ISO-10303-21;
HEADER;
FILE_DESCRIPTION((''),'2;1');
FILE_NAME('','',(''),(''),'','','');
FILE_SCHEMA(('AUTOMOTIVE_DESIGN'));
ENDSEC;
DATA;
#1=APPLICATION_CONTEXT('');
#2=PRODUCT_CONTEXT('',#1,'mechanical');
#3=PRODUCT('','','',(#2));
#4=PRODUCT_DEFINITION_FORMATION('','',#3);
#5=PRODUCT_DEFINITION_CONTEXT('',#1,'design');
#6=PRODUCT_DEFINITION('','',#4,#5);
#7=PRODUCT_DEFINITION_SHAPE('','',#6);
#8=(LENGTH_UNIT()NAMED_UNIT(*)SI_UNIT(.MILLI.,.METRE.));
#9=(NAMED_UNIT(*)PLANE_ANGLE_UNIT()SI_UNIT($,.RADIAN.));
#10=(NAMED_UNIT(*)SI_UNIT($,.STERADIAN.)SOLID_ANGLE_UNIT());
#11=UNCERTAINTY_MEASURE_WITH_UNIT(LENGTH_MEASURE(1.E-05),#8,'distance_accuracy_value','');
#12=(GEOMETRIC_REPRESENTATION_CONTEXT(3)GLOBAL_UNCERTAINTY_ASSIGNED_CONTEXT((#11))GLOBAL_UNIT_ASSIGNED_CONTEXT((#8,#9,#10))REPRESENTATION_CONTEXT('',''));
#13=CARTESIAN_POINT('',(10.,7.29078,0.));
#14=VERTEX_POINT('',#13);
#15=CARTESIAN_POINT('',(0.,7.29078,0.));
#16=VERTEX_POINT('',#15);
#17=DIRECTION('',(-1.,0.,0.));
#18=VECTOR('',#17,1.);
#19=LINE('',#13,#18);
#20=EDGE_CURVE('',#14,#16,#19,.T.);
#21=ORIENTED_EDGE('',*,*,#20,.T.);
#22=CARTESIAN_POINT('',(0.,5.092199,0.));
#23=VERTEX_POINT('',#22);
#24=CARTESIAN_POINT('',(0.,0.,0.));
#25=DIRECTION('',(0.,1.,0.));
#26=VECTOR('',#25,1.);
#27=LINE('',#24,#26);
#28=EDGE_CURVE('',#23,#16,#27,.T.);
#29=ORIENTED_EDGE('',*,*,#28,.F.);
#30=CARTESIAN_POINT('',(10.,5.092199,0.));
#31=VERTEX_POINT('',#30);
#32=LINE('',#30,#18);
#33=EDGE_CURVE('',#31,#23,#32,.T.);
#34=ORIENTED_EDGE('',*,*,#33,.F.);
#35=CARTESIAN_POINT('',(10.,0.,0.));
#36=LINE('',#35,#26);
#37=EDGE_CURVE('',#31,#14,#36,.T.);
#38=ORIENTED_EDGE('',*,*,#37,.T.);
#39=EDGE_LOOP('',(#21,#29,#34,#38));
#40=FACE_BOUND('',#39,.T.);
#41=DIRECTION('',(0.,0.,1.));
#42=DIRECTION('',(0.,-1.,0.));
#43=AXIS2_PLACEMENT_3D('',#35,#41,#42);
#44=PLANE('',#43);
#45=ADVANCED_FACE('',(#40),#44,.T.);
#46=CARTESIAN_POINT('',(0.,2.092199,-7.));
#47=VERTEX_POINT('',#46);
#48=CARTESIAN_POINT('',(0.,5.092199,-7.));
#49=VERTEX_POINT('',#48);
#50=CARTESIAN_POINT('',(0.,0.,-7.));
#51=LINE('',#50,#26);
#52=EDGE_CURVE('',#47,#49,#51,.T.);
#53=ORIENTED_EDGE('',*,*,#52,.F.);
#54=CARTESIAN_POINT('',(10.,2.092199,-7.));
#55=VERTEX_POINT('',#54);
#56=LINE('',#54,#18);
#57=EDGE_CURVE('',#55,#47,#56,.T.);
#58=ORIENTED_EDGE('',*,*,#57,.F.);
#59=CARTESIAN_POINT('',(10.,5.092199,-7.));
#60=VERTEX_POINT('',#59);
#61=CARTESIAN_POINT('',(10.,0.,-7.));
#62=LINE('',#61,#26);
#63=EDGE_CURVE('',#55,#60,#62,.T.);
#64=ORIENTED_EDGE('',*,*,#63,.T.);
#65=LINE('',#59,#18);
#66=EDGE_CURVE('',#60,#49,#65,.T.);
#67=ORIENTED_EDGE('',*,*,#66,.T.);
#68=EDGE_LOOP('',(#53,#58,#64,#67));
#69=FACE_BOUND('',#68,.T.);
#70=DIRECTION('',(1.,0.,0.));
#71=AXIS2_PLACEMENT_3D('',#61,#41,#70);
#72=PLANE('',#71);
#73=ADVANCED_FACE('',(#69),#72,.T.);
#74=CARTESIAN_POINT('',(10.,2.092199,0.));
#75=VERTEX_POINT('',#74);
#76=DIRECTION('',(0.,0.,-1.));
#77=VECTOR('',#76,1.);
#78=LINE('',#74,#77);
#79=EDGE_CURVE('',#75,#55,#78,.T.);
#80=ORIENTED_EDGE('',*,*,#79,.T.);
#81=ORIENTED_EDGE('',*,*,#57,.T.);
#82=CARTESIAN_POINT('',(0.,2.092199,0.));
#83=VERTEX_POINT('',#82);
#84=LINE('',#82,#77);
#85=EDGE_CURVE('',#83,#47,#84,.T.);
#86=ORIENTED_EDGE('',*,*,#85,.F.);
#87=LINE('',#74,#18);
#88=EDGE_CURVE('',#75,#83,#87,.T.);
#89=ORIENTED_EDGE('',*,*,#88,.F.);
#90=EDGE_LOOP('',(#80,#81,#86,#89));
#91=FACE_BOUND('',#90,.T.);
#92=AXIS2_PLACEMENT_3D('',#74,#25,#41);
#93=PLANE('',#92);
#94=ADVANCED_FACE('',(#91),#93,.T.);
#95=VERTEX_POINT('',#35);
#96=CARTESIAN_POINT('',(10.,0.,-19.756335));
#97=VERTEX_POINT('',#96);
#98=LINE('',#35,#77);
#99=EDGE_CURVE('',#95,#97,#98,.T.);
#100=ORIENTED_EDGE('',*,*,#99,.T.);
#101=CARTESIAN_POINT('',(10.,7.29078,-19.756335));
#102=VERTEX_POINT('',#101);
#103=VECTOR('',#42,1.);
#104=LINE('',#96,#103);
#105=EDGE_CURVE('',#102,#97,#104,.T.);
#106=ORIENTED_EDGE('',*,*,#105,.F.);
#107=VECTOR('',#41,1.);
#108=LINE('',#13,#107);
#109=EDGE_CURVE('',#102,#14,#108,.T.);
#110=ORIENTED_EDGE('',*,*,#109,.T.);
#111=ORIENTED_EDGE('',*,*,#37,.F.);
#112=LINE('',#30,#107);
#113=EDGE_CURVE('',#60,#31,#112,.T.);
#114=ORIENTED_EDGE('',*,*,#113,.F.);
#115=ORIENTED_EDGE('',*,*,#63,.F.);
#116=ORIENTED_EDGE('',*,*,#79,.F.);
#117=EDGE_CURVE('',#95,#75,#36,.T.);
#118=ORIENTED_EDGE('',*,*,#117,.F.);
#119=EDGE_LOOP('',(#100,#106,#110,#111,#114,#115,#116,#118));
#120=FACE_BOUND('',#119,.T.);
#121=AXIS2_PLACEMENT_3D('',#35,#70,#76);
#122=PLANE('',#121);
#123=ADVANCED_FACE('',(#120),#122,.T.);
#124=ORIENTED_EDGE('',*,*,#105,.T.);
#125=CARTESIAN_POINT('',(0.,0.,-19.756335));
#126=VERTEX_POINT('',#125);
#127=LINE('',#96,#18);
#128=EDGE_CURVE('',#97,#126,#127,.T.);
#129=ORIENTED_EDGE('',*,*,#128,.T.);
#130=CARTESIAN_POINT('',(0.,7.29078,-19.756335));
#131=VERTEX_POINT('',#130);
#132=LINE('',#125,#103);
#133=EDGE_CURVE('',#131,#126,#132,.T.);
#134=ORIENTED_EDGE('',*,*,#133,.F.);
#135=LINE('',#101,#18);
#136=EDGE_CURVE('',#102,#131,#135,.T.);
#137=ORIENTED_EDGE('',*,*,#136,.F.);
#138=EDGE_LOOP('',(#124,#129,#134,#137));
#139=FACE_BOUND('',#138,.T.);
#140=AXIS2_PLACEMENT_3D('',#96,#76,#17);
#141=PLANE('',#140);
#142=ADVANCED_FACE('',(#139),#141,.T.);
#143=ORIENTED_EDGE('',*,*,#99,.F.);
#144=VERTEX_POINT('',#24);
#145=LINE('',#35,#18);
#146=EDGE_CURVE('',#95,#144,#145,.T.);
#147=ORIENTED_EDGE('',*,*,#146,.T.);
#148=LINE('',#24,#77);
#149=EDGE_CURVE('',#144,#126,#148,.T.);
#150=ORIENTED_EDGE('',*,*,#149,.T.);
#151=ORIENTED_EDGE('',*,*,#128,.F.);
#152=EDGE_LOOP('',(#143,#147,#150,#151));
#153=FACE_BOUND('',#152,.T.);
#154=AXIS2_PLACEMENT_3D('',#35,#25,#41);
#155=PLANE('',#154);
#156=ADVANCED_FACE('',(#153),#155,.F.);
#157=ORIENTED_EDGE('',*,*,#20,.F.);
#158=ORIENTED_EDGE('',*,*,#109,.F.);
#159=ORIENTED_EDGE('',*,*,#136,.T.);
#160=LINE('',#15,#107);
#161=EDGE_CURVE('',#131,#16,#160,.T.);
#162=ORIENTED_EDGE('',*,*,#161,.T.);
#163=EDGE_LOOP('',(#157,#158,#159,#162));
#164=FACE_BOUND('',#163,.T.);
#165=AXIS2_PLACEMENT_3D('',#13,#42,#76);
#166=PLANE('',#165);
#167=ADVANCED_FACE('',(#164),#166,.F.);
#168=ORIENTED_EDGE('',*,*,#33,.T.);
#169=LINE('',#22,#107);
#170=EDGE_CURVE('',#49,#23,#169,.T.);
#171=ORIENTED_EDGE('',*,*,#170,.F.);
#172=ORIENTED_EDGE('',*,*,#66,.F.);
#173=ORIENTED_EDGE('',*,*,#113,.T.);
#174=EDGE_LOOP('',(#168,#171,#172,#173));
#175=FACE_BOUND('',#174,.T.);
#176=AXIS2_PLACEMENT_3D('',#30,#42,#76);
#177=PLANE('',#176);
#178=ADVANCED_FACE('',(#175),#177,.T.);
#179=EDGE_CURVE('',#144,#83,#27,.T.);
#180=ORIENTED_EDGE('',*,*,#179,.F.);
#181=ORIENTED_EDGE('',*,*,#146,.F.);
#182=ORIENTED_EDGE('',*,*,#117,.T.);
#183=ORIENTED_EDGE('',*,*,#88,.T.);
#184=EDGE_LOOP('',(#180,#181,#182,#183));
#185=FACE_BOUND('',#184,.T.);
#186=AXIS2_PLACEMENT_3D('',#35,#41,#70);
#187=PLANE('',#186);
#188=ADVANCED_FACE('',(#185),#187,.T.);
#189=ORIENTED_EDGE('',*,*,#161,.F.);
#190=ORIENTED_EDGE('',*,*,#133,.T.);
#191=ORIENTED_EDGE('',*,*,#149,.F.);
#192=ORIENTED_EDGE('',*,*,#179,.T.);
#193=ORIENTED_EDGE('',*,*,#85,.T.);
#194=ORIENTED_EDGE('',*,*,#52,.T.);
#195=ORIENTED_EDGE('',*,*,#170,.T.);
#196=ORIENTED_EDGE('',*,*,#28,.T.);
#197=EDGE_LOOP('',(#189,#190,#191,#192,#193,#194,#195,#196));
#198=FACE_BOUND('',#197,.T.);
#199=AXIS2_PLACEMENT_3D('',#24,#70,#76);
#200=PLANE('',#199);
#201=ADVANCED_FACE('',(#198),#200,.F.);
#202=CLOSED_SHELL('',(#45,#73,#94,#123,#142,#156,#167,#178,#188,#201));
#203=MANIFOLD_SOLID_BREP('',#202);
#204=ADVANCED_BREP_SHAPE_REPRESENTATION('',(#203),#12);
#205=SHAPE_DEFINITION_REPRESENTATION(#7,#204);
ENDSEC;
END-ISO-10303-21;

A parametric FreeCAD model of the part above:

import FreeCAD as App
import Part
import Sketcher
from FreeCAD import Vector
Q = App.Units.Quantity

doc = App.newDocument("Part")
body = doc.addObject("PartDesign::Body", "Body")

sketch1 = body.newObject("Sketcher::SketchObject", "Sketch")
sketch1.AttachmentSupport = (doc.getObject("YZ_Plane"), [""])
sketch1.MapMode = "FlatFace"
sketch1.addGeometry(Part.LineSegment(Vector(2.092199, 0, 0), Vector(0, 0, 0)), False)
sketch1.addGeometry(Part.LineSegment(Vector(0, 0, 0), Vector(0, -19.756335, 0)), False)
sketch1.addGeometry(Part.LineSegment(Vector(0, -19.756335, 0), Vector(7.29078, -19.756335, 0)), False)
sketch1.addGeometry(Part.LineSegment(Vector(7.29078, -19.756335, 0), Vector(7.29078, 0, 0)), False)
sketch1.addGeometry(Part.LineSegment(Vector(7.29078, 0, 0), Vector(5.092199, 0, 0)), False)
sketch1.addGeometry(Part.LineSegment(Vector(5.092199, 0, 0), Vector(5.092199, -7, 0)), False)
sketch1.addGeometry(Part.LineSegment(Vector(5.092199, -7, 0), Vector(2.092199, -7, 0)), False)
sketch1.addGeometry(Part.LineSegment(Vector(2.092199, -7, 0), Vector(2.092199, 0, 0)), False)
sketch1.addConstraint(Sketcher.Constraint("Coincident", 0, 2, 1, 1))
sketch1.addConstraint(Sketcher.Constraint("Coincident", 1, 2, 2, 1))
sketch1.addConstraint(Sketcher.Constraint("Coincident", 2, 2, 3, 1))
sketch1.addConstraint(Sketcher.Constraint("Coincident", 3, 2, 4, 1))
sketch1.addConstraint(Sketcher.Constraint("Coincident", 4, 2, 5, 1))
sketch1.addConstraint(Sketcher.Constraint("Coincident", 5, 2, 6, 1))
sketch1.addConstraint(Sketcher.Constraint("Coincident", 6, 2, 7, 1))
sketch1.addConstraint(Sketcher.Constraint("Coincident", 7, 2, 0, 1))
sketch1.addConstraint(Sketcher.Constraint("Horizontal", 0))
sketch1.addConstraint(Sketcher.Constraint("Vertical", 1))
sketch1.addConstraint(Sketcher.Constraint("Horizontal", 2))
sketch1.addConstraint(Sketcher.Constraint("Vertical", 3))
sketch1.addConstraint(Sketcher.Constraint("Horizontal", 4))
sketch1.addConstraint(Sketcher.Constraint("Vertical", 5))
sketch1.addConstraint(Sketcher.Constraint("Horizontal", 6))
sketch1.addConstraint(Sketcher.Constraint("Vertical", 7))
sketch1.addConstraint(Sketcher.Constraint("Coincident", 0, 2, -1, 1))
sketch1.addConstraint(Sketcher.Constraint("PointOnObject", 3, 2, -1))
sketch1.addConstraint(Sketcher.Constraint("DistanceX", 6, 2, 6, 1, Q("3 mm")))
sketch1.addConstraint(Sketcher.Constraint("DistanceY", 5, 2, 5, 1, Q("7 mm")))
sketch1.addConstraint(Sketcher.Constraint("DistanceX", 0, 2, 0, 1, Q("2.092199 mm")))
sketch1.addConstraint(Sketcher.Constraint("DistanceX", 2, 1, 2, 2, Q("7.29078 mm")))
sketch1.addConstraint(Sketcher.Constraint("DistanceY", 1, 2, 1, 1, Q("19.756335 mm")))
pad1 = body.newObject("PartDesign::Pad", "Pad")
pad1.Profile = sketch1
pad1.Length = 10

doc.recompute()
